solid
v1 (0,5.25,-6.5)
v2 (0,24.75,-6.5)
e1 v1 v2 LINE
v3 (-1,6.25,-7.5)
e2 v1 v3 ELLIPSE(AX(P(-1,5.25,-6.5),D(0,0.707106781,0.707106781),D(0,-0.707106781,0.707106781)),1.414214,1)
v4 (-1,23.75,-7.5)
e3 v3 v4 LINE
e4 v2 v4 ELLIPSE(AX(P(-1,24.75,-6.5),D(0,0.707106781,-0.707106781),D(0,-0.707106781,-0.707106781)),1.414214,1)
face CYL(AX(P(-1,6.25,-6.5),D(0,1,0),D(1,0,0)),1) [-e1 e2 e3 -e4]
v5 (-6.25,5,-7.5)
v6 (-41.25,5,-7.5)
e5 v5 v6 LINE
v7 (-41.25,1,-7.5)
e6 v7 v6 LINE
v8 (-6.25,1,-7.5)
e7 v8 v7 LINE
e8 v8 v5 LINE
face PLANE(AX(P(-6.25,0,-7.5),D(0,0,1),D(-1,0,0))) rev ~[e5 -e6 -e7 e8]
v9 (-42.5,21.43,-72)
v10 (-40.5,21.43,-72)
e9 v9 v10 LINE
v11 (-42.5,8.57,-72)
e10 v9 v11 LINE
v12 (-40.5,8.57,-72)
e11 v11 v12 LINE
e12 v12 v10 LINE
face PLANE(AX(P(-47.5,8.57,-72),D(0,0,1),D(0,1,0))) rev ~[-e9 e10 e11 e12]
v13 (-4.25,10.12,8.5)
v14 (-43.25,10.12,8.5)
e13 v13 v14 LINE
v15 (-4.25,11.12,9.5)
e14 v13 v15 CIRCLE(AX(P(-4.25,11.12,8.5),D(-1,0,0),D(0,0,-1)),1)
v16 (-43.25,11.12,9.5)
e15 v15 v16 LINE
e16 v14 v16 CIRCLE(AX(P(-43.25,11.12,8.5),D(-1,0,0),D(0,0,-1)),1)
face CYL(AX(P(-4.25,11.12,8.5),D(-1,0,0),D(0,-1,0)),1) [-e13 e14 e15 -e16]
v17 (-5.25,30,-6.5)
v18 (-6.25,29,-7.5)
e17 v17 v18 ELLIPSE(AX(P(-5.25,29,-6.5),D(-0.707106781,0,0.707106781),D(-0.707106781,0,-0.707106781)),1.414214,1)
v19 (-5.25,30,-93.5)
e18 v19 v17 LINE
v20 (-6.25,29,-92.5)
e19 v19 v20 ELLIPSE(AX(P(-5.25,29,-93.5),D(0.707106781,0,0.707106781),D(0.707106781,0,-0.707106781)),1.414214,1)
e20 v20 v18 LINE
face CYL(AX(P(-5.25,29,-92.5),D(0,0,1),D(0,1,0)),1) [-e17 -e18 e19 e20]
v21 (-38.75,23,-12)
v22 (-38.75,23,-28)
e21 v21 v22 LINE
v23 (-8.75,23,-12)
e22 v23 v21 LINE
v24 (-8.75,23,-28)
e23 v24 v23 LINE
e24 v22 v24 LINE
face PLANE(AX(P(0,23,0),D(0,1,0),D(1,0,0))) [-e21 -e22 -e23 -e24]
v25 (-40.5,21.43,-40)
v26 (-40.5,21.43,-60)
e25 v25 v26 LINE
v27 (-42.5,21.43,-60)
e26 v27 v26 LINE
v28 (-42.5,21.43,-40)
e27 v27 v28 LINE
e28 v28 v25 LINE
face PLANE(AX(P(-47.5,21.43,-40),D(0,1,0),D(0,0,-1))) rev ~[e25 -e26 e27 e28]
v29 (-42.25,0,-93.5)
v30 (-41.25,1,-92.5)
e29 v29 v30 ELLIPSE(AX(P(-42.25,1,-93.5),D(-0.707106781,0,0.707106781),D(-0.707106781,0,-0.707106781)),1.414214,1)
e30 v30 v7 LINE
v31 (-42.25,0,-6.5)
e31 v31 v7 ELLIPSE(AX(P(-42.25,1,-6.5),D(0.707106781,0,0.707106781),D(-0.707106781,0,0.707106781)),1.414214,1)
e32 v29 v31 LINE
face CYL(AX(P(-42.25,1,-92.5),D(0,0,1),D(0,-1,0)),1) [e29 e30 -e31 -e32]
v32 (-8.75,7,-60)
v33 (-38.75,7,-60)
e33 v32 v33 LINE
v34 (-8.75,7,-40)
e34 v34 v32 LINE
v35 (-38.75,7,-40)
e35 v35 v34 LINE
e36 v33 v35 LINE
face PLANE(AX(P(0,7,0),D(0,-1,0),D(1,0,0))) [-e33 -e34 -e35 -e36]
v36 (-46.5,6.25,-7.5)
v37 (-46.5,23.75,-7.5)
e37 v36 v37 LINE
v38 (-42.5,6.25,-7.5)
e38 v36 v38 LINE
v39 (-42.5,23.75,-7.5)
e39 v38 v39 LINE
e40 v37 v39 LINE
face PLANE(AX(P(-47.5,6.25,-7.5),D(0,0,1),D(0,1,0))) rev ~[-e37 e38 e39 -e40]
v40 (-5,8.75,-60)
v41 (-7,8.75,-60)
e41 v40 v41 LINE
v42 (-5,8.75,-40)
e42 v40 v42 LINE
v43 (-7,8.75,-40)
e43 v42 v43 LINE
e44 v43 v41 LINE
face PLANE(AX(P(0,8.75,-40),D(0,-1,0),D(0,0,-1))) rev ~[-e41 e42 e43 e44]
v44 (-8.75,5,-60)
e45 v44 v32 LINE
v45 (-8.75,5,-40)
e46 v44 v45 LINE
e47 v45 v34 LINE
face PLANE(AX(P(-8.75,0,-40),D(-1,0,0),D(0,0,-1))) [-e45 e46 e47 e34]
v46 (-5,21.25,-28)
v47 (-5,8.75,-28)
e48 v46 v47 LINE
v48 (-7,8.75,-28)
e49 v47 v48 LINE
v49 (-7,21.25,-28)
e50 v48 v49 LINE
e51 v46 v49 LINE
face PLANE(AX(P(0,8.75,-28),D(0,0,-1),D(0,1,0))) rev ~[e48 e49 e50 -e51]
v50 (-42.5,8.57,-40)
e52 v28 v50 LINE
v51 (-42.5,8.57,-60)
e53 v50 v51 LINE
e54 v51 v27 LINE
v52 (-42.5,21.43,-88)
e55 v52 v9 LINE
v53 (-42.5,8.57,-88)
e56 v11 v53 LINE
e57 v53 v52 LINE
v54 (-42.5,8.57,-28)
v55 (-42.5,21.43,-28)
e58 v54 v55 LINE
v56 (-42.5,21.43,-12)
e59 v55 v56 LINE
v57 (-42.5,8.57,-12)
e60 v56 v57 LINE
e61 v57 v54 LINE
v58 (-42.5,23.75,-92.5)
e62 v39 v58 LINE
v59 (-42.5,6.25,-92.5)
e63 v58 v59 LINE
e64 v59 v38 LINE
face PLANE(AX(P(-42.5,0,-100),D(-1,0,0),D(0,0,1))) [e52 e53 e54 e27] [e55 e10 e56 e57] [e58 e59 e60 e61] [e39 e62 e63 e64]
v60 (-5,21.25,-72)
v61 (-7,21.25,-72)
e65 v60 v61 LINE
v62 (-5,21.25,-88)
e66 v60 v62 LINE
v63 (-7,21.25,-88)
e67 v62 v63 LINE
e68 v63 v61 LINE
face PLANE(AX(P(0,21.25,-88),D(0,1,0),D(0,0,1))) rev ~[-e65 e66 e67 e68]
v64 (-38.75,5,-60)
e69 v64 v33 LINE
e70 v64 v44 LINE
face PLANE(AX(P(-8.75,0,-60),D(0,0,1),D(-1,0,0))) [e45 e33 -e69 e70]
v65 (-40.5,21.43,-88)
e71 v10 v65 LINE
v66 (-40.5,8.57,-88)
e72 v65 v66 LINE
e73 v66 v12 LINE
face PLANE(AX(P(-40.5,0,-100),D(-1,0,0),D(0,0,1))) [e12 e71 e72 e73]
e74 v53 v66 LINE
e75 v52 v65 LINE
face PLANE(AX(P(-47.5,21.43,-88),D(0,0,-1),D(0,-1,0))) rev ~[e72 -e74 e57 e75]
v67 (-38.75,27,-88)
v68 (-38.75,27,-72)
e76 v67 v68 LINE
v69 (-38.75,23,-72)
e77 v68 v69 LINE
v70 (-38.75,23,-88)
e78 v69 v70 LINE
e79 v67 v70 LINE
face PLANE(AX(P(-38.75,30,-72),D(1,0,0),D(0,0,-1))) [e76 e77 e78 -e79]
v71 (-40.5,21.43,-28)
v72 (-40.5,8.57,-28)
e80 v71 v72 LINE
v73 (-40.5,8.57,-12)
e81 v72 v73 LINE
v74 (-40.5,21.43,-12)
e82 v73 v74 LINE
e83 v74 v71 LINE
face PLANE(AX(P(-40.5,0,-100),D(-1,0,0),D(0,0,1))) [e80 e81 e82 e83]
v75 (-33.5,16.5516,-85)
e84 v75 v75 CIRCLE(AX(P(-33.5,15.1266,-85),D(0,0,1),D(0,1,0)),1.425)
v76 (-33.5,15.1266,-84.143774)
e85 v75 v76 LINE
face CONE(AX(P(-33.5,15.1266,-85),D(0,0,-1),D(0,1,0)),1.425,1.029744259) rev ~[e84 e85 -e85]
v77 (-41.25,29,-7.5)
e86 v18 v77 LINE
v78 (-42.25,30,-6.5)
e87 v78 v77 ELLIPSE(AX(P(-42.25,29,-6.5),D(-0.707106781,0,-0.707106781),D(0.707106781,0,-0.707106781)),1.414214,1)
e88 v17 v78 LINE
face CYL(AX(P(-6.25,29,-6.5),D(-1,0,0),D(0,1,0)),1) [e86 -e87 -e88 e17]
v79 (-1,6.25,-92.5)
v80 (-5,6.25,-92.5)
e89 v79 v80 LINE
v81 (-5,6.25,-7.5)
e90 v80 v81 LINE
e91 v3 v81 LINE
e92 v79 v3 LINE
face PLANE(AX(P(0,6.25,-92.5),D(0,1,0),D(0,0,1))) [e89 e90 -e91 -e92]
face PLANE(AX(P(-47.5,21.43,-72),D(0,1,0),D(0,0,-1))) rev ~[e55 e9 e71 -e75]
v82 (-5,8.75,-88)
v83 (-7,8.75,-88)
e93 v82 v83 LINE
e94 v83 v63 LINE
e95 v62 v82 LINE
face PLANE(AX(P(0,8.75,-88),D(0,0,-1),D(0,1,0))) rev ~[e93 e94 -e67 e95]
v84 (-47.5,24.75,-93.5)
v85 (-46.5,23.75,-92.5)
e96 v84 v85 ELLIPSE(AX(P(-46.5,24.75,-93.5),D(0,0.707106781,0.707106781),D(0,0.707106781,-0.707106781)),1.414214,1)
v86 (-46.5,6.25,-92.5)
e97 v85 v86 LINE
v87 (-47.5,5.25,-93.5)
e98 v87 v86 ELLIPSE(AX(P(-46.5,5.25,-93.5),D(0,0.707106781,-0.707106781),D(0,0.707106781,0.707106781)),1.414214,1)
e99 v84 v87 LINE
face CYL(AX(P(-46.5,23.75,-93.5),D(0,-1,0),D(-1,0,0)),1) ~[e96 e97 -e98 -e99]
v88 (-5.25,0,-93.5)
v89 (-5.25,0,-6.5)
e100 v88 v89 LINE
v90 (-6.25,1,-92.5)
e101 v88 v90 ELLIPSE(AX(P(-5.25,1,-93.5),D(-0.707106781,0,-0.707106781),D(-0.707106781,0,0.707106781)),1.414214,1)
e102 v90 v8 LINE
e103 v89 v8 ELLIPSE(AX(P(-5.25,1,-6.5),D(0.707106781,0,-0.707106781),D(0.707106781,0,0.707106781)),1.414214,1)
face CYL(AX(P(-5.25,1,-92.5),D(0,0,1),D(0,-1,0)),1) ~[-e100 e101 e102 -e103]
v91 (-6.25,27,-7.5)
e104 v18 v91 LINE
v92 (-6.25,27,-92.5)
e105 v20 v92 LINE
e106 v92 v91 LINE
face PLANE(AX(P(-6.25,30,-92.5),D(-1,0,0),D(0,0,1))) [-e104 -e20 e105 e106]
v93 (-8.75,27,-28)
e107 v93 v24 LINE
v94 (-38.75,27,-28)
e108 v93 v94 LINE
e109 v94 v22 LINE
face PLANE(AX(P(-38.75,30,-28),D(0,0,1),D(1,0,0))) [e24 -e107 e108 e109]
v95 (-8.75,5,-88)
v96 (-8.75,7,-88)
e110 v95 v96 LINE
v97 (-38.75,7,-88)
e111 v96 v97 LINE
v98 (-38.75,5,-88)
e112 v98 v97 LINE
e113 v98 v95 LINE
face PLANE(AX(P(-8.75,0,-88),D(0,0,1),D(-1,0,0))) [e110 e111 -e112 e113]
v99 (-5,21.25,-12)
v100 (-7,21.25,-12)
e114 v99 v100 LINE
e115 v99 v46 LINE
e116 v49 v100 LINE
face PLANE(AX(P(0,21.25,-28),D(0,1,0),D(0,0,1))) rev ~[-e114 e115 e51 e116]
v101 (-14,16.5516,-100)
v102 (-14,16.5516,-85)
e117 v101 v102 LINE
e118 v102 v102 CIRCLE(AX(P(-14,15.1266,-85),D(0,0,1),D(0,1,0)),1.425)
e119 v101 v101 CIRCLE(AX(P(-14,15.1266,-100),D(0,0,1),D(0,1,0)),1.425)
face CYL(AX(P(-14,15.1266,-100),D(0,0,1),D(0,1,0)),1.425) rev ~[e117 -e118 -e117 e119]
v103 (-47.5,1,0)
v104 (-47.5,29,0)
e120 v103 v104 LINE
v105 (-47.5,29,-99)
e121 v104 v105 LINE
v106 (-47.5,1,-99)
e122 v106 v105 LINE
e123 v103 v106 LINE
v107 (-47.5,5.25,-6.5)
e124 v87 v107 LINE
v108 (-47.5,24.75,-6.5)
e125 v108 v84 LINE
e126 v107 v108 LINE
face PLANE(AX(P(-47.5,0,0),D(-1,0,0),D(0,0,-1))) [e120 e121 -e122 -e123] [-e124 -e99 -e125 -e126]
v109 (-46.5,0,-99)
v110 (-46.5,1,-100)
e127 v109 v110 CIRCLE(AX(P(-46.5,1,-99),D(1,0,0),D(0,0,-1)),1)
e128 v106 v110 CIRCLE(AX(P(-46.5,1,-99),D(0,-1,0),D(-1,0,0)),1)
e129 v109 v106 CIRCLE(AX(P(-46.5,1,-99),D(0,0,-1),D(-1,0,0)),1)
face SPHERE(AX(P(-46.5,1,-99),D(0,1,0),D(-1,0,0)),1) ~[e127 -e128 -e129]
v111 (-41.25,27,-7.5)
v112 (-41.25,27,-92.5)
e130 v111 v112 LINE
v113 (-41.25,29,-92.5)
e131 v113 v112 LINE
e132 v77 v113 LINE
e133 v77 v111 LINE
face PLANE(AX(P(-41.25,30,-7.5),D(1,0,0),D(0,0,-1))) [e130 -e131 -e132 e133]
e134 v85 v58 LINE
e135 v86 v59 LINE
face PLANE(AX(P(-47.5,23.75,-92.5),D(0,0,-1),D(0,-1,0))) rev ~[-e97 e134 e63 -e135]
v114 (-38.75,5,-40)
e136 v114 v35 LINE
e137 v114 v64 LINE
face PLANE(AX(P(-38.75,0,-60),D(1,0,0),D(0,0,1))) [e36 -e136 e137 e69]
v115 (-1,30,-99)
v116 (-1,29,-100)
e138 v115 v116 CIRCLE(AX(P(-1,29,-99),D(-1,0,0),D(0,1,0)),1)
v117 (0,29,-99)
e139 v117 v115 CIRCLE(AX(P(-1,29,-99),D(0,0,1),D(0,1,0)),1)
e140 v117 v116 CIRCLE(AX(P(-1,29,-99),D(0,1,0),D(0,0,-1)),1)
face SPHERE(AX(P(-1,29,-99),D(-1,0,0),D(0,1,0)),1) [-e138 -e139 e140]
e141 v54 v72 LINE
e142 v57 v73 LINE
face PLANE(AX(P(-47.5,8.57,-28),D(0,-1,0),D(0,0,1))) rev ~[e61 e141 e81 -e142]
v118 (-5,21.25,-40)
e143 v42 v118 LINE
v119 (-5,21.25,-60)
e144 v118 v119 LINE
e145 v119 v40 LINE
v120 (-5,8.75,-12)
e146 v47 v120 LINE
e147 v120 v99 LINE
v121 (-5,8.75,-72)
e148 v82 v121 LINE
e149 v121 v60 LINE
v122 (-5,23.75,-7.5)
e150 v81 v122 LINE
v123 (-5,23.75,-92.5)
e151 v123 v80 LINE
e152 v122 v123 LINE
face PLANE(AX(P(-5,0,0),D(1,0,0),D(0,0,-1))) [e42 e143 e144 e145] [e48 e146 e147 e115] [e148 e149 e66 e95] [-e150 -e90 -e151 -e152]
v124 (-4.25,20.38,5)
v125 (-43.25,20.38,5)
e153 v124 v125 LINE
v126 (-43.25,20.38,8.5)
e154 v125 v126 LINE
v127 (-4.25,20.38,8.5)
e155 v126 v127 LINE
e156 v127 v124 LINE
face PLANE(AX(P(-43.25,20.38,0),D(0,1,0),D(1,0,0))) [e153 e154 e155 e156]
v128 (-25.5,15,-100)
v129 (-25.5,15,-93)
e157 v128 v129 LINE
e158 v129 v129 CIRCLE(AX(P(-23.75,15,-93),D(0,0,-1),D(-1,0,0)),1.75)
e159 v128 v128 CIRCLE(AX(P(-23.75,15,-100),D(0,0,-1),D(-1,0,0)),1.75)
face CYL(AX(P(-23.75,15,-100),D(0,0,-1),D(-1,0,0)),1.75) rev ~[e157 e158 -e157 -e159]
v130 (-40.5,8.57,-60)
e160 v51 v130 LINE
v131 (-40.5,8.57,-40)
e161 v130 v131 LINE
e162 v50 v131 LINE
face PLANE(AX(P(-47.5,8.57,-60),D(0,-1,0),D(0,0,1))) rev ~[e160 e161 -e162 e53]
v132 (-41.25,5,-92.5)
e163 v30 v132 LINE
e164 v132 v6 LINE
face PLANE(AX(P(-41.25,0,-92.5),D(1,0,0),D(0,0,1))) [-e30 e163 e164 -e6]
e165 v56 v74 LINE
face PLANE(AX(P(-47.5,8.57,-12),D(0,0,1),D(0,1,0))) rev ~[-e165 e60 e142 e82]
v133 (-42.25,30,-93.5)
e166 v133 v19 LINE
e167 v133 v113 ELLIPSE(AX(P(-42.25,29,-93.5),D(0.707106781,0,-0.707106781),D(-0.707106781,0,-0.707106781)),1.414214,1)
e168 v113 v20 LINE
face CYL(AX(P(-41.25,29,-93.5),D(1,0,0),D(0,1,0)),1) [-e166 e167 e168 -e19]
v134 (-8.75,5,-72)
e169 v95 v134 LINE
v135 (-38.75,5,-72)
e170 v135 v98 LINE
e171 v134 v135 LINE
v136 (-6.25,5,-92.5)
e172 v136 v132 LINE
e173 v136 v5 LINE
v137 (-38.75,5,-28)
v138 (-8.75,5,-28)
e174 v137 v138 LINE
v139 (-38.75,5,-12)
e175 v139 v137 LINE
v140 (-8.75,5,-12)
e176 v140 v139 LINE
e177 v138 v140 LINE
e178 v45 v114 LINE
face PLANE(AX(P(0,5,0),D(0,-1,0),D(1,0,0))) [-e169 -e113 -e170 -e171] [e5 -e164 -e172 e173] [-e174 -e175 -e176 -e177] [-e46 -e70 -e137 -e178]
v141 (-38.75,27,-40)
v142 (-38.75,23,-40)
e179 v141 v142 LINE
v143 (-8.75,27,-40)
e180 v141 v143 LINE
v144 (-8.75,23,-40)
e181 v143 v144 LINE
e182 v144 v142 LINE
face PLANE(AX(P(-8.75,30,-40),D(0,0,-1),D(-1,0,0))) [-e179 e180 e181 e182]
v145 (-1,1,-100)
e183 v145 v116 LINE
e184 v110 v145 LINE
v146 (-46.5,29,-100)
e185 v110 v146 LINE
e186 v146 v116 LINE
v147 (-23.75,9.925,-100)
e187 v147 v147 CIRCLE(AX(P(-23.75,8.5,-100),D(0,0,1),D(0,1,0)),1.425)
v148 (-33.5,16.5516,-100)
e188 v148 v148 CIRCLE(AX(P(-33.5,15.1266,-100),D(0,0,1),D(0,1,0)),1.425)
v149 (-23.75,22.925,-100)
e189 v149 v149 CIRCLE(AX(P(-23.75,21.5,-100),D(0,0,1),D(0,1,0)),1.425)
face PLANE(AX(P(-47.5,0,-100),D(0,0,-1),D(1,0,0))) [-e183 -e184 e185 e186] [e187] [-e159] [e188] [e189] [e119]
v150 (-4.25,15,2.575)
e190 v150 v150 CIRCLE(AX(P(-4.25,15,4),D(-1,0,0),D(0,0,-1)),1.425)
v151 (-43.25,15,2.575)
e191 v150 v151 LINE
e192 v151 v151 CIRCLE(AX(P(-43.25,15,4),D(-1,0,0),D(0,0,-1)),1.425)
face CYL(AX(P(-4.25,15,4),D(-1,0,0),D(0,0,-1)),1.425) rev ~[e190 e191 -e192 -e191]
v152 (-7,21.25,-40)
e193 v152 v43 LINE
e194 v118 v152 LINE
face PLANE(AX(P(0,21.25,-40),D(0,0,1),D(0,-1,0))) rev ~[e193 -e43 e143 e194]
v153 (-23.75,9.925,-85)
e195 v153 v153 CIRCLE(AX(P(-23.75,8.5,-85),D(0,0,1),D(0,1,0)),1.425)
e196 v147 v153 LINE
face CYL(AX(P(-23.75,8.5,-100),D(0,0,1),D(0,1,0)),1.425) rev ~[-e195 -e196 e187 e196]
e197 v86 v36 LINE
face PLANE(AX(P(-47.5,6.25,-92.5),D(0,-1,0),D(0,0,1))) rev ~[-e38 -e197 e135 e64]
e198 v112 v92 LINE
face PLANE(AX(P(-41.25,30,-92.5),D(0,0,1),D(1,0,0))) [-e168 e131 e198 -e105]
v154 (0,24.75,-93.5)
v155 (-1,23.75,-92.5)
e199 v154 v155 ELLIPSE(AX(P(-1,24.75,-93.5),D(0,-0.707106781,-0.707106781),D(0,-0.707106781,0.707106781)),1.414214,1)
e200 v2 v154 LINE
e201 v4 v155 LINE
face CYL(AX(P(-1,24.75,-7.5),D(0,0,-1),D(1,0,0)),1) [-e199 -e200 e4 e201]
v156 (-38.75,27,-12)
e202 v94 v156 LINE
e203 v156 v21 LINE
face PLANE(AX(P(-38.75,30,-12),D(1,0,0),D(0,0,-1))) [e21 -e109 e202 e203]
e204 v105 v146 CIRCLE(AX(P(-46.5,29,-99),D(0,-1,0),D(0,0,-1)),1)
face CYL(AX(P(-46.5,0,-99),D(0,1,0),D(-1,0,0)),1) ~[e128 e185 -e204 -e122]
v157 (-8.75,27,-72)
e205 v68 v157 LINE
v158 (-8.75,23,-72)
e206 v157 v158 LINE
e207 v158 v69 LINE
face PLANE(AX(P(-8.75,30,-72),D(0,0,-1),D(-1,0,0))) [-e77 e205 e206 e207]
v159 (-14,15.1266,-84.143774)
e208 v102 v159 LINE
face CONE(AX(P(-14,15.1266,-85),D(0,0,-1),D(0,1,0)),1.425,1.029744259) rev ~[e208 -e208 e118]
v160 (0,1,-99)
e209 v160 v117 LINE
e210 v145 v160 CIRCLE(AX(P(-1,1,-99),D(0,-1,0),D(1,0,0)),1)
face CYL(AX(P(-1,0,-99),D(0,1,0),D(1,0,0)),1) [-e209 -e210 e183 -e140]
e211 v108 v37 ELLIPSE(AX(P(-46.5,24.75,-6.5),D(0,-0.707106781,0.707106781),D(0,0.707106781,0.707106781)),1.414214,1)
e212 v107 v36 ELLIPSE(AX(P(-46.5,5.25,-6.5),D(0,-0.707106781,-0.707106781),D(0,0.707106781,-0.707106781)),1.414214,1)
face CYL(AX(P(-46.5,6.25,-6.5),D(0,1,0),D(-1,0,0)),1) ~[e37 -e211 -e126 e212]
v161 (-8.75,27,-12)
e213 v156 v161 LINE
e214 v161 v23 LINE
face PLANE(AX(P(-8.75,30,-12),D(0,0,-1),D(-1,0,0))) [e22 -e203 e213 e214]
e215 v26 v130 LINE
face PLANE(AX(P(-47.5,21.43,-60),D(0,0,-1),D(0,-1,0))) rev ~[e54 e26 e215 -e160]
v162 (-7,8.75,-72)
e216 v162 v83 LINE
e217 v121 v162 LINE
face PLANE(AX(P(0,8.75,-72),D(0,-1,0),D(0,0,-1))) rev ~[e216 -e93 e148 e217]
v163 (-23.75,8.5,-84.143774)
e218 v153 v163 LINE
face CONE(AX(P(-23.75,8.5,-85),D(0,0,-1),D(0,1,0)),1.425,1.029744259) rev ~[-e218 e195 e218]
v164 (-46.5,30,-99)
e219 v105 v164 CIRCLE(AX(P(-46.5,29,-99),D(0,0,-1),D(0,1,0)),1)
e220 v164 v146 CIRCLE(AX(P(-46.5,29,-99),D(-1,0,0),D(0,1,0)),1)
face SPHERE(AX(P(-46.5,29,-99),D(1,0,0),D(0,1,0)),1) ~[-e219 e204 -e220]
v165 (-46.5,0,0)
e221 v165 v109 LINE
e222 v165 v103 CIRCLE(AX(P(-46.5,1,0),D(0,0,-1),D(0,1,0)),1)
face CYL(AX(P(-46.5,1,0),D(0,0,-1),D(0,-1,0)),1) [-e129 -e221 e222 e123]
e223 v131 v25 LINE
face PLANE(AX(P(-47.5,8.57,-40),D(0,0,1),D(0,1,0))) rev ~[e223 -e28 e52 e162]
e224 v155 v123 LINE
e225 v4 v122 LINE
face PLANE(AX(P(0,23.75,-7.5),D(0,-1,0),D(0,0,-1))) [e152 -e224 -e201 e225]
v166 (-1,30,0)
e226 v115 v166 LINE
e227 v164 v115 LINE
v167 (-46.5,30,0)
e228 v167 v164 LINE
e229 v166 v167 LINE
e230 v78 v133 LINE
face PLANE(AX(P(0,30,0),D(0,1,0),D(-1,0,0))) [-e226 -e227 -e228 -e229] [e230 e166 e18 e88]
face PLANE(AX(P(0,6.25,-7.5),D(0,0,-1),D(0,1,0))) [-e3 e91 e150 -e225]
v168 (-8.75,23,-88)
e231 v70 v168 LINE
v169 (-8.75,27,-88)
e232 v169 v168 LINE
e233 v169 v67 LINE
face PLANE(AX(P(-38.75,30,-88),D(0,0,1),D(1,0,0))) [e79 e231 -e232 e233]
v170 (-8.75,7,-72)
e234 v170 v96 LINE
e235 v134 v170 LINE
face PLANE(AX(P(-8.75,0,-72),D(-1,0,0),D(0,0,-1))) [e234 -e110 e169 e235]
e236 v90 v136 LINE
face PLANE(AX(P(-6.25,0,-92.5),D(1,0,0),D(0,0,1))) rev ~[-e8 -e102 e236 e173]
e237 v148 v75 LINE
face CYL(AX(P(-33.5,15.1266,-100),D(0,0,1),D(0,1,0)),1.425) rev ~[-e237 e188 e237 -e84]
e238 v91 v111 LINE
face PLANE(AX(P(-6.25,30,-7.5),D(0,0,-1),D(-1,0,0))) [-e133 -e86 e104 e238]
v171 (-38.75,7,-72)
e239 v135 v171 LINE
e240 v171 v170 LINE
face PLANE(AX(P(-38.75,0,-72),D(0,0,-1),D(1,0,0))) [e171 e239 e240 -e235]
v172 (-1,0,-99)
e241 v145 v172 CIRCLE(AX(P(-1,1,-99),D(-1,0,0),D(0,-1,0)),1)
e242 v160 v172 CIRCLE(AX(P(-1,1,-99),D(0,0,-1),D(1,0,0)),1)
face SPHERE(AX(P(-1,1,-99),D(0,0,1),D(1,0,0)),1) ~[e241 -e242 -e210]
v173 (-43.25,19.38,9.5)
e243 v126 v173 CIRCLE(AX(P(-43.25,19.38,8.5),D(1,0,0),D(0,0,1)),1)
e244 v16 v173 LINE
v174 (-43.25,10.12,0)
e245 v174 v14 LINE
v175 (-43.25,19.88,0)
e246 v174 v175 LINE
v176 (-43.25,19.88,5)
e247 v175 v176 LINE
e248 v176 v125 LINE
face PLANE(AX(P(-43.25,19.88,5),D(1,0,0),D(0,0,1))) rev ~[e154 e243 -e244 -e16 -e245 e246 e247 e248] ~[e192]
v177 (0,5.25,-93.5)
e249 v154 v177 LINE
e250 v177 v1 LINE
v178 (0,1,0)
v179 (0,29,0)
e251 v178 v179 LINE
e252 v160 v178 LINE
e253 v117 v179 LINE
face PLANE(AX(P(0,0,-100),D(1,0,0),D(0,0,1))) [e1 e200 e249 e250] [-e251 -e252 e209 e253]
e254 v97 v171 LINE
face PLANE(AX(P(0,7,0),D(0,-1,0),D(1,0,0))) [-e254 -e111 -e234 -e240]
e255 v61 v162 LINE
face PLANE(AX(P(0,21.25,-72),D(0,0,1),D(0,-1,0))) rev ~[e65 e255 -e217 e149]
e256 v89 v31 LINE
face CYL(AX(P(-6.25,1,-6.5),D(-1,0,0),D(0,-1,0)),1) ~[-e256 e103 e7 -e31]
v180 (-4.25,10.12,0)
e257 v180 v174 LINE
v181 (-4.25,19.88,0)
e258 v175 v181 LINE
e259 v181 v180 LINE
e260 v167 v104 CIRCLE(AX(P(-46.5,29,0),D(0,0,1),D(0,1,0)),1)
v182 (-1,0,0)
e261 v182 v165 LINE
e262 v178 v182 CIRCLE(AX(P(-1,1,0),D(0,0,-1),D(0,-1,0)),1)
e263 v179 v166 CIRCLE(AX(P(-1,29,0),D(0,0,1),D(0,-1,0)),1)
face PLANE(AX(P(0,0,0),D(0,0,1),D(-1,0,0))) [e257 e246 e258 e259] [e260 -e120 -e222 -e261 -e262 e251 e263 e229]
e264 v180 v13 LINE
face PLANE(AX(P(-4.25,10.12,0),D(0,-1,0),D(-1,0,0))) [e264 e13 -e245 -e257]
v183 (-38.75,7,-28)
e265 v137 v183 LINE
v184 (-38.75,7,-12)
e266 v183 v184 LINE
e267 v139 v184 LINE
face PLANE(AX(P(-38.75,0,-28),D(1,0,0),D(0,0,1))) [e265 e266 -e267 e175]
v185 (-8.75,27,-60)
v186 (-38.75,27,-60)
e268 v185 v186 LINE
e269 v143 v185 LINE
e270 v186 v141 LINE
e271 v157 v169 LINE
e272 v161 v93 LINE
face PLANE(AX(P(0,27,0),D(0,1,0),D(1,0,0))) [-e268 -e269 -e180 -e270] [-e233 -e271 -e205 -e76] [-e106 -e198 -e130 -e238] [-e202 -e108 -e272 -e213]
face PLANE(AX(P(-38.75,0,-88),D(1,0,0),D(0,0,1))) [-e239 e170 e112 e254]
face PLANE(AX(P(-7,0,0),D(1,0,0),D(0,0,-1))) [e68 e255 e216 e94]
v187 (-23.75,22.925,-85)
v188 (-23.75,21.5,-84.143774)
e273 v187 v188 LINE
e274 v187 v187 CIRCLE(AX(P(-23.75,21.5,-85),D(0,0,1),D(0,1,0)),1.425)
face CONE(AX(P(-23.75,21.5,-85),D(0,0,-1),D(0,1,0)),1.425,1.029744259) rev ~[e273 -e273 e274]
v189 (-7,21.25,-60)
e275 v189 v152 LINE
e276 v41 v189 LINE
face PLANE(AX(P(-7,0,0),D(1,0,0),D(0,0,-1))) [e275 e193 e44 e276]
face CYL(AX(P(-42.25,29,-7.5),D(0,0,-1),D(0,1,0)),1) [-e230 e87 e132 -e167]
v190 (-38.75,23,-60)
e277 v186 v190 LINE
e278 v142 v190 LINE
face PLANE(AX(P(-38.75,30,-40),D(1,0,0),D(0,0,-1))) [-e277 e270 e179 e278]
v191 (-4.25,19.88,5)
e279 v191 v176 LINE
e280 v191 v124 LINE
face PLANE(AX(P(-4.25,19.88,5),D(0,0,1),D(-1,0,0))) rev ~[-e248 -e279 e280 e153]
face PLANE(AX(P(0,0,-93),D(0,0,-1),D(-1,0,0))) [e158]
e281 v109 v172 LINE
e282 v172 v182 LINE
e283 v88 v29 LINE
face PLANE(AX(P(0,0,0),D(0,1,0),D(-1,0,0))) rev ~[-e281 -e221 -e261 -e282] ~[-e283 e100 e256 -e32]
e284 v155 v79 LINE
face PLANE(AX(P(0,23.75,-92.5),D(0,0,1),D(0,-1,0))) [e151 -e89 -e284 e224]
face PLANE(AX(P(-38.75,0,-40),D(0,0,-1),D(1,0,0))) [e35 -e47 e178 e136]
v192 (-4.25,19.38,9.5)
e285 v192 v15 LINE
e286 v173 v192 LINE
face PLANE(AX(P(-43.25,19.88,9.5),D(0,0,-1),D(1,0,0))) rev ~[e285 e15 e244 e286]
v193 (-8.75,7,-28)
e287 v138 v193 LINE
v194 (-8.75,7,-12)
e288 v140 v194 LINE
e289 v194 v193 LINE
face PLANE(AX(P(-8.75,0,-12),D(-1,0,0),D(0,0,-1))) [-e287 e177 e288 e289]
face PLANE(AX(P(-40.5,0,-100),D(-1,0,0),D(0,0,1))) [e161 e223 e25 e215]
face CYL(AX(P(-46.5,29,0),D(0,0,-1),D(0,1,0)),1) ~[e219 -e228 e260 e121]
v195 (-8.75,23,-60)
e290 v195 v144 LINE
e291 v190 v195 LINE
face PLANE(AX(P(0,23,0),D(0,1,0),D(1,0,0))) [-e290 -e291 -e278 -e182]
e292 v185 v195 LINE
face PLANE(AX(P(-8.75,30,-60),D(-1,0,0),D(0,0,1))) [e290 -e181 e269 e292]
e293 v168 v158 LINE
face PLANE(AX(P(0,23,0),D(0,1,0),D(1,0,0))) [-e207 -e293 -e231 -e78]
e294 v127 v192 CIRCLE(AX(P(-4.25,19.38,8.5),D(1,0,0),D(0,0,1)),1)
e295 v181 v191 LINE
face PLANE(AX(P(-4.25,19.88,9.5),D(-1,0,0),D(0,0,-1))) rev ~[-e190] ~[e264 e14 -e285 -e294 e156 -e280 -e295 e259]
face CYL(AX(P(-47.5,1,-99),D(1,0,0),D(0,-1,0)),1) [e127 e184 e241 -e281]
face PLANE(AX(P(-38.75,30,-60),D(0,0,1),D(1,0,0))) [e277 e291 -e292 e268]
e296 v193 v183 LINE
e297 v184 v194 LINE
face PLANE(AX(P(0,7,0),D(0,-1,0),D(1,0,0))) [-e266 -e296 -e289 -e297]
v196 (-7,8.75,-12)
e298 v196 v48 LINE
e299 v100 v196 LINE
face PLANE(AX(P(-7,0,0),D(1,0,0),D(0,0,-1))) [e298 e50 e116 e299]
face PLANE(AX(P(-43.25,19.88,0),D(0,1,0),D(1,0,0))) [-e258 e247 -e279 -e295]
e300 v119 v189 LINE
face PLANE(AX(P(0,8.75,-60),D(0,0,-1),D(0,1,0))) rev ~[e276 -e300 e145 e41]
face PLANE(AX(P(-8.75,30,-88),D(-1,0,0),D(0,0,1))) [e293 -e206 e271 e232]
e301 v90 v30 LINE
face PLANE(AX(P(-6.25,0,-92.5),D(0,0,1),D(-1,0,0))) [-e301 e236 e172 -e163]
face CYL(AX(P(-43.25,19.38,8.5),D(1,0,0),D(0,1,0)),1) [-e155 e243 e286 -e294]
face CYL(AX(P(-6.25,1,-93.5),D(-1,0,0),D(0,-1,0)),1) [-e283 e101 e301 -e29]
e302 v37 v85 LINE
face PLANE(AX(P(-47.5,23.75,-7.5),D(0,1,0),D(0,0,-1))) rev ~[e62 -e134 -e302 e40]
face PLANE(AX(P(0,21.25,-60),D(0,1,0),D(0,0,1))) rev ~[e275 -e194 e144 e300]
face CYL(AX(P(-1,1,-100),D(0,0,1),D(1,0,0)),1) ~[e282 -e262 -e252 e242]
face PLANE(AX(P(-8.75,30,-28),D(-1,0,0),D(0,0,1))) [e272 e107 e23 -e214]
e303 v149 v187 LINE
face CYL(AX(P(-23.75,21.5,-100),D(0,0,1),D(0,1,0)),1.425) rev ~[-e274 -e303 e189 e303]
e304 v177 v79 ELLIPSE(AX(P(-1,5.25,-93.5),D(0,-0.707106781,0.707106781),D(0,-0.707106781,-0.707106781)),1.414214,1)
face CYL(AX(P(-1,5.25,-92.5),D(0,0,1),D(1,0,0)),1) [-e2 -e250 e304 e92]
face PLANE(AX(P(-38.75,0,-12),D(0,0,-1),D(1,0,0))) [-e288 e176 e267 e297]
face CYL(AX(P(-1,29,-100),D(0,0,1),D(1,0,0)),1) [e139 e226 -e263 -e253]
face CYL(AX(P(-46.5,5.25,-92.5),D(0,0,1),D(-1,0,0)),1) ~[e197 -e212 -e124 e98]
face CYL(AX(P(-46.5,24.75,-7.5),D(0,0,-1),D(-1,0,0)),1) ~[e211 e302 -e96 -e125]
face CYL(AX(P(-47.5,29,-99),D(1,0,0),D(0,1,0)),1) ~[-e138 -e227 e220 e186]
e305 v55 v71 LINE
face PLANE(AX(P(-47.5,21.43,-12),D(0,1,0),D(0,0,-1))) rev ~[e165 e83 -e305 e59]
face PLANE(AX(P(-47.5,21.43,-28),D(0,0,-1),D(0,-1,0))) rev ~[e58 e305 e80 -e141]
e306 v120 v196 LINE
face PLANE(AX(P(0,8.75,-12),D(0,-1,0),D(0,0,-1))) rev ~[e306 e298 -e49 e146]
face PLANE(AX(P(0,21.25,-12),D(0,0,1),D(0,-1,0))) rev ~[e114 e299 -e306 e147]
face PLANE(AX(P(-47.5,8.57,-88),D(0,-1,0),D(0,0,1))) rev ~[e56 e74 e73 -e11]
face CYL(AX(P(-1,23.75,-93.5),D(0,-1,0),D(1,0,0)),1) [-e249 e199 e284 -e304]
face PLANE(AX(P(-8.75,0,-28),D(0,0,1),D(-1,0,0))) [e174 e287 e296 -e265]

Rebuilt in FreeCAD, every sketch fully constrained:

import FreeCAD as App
import Part
import Sketcher
Q = App.Units.Quantity


def edges_at(feature, points):
    """Names of the edges that pass closest to the given points."""
    edges = feature.Shape.Edges
    near = lambda p: min(range(len(edges)), key=lambda i: edges[i].distToShape(Part.Vertex(*p))[0])
    return sorted({f"Edge{near(p) + 1}" for p in points})


def add_polygon(sketch, points):
    """Adds a closed chain of lines whose ends are joined by coincident constraints."""
    first, n = sketch.GeometryCount, len(points)
    for a, b in zip(points, points[1:] + points[:1]):
        sketch.addGeometry(Part.LineSegment(App.Vector(*a, 0), App.Vector(*b, 0)), False)
    for i in range(n):
        sketch.addConstraint(Sketcher.Constraint("Coincident", first + i, 2, first + (i + 1) % n, 1))

doc = App.newDocument("Part")
body = doc.addObject("PartDesign::Body", "Body")

sketch1 = body.newObject("Sketcher::SketchObject", "Sketch")
sketch1.AttachmentSupport = (doc.getObject("XZ_Plane"), [""])
sketch1.MapMode = "FlatFace"
add_polygon(sketch1, [(-48, 0), (0, 0), (0, -100), (-48, -100)])
sketch1.addConstraint([
    Sketcher.Constraint("Horizontal", 0),
    Sketcher.Constraint("Vertical", 1),
    Sketcher.Constraint("Horizontal", 2),
    Sketcher.Constraint("Vertical", 3),
    Sketcher.Constraint("Coincident", 0, 2, -1, 1),
    Sketcher.Constraint("DistanceY", 1, 2, 1, 1, Q("100 mm")),
    Sketcher.Constraint("DistanceX", 0, 1, 0, 2, Q("47.5 mm")),
])
pad1 = body.newObject("PartDesign::Pad", "Pad")
pad1.Profile = sketch1
pad1.Length = 30
pad1.Reversed = True

sketch2 = body.newObject("Sketcher::SketchObject", "Sketch001")
sketch2.AttachmentSupport = (doc.getObject("XY_Plane"), [""])
sketch2.MapMode = "FlatFace"
add_polygon(sketch2, [(-4, 20), (-43, 20), (-43, 10), (-4, 10)])
sketch2.addConstraint([
    Sketcher.Constraint("Horizontal", 0),
    Sketcher.Constraint("Vertical", 1),
    Sketcher.Constraint("Horizontal", 2),
    Sketcher.Constraint("Vertical", 3),
    Sketcher.Constraint("DistanceX", 0, 2, 0, 1, Q("39 mm")),
    Sketcher.Constraint("DistanceY", 1, 2, 1, 1, Q("9.76 mm")),
    Sketcher.Constraint("DistanceX", 0, 2, -1, 1, Q("43.25 mm")),
    Sketcher.Constraint("DistanceY", -1, 1, 0, 2, Q("19.88 mm")),
])
pad2 = body.newObject("PartDesign::Pad", "Pad001")
pad2.Profile = sketch2
pad2.Length = 9.5

sketch3 = body.newObject("Sketcher::SketchObject", "Sketch002")
sketch3.AttachmentSupport = (doc.getObject("YZ_Plane"), [""])
sketch3.MapMode = "FlatFace"
sketch3.AttachmentOffset = App.Placement(App.Vector(0, 0, -4.25), App.Rotation())
sketch3.addGeometry(Part.Circle(App.Vector(15, 4, 0), App.Vector(0, 0, 1), 1.4), False)
sketch3.addConstraint([
    Sketcher.Constraint("Diameter", 0, Q("2.85 mm")),
    Sketcher.Constraint("DistanceX", -1, 1, 0, 3, Q("15 mm")),
    Sketcher.Constraint("DistanceY", -1, 1, 0, 3, Q("4 mm")),
])
doc.recompute()
hole = body.newObject("PartDesign::Hole", "Hole")
hole.Profile = sketch3
hole.ThreadType = "None"
hole.Diameter = 2.85
hole.DepthType = "ThroughAll"

sketch4 = body.newObject("Sketcher::SketchObject", "Sketch003")
sketch4.AttachmentSupport = (doc.getObject("XZ_Plane"), [""])
sketch4.MapMode = "FlatFace"
sketch4.AttachmentOffset = App.Placement(App.Vector(0, 0, -19.88), App.Rotation())
add_polygon(sketch4, [(-4.2, 5), (-43.2, 5), (-43.2, 9.5), (-4.2, 9.5)])
sketch4.addConstraint([
    Sketcher.Constraint("Horizontal", 0),
    Sketcher.Constraint("Vertical", 1),
    Sketcher.Constraint("Horizontal", 2),
    Sketcher.Constraint("Vertical", 3),
    Sketcher.Constraint("DistanceY", 1, 1, 1, 2, Q("4.5 mm")),
    Sketcher.Constraint("DistanceX", 0, 2, 0, 1, Q("39 mm")),
    Sketcher.Constraint("DistanceY", -1, 1, 0, 2, Q("5 mm")),
    Sketcher.Constraint("DistanceX", 0, 2, -1, 1, Q("43.25 mm")),
])
pad3 = body.newObject("PartDesign::Pad", "Pad002")
pad3.Profile = sketch4
pad3.Length = 0.5
pad3.Reversed = True

sketch5 = body.newObject("Sketcher::SketchObject", "Sketch004")
sketch5.AttachmentSupport = (doc.getObject("XZ_Plane"), [""])
sketch5.MapMode = "FlatFace"
sketch5.AttachmentOffset = App.Placement(App.Vector(0, 0, -30), App.Rotation())
add_polygon(sketch5, [(-9, -28), (-39, -28), (-39, -12), (-9, -12)])
add_polygon(sketch5, [(-9, -60), (-39, -60), (-39, -40), (-9, -40)])
add_polygon(sketch5, [(-9, -88), (-39, -88), (-39, -72), (-9, -72)])
sketch5.addConstraint([
    Sketcher.Constraint("Horizontal", 0),
    Sketcher.Constraint("Vertical", 1),
    Sketcher.Constraint("Horizontal", 2),
    Sketcher.Constraint("Vertical", 3),
    Sketcher.Constraint("Horizontal", 4),
    Sketcher.Constraint("Vertical", 5),
    Sketcher.Constraint("Horizontal", 6),
    Sketcher.Constraint("Vertical", 7),
    Sketcher.Constraint("Horizontal", 8),
    Sketcher.Constraint("Vertical", 9),
    Sketcher.Constraint("Horizontal", 10),
    Sketcher.Constraint("Vertical", 11),
    Sketcher.Constraint("Vertical", 1, 2, 4, 2),
    Sketcher.Constraint("Vertical", 3, 2, 6, 2),
    Sketcher.Constraint("Vertical", 5, 2, 8, 2),
    Sketcher.Constraint("Vertical", 7, 2, 10, 2),
    Sketcher.Constraint("Equal", 3, 9),
    Sketcher.Constraint("DistanceX", 0, 2, 0, 1, Q("30 mm")),
    Sketcher.Constraint("DistanceY", 1, 1, 1, 2, Q("16 mm")),
    Sketcher.Constraint("DistanceY", 5, 1, 5, 2, Q("20 mm")),
    Sketcher.Constraint("DistanceY", 1, 2, -1, 1, Q("12 mm")),
    Sketcher.Constraint("DistanceY", 5, 2, 0, 2, Q("12 mm")),
    Sketcher.Constraint("DistanceY", 9, 2, 4, 2, Q("12 mm")),
    Sketcher.Constraint("DistanceX", 0, 2, -1, 1, Q("38.75 mm")),
])
pocket1 = body.newObject("PartDesign::Pocket", "Pocket")
pocket1.Profile = sketch5
pocket1.Length = 7
pocket1.Reversed = True

sketch6 = body.newObject("Sketcher::SketchObject", "Sketch005")
sketch6.AttachmentSupport = (doc.getObject("XZ_Plane"), [""])
sketch6.MapMode = "FlatFace"
add_polygon(sketch6, [(-9, -72), (-39, -72), (-39, -88), (-9, -88)])
add_polygon(sketch6, [(-9, -40), (-39, -40), (-39, -60), (-9, -60)])
add_polygon(sketch6, [(-9, -12), (-39, -12), (-39, -28), (-9, -28)])
sketch6.addConstraint([
    Sketcher.Constraint("Horizontal", 0),
    Sketcher.Constraint("Vertical", 1),
    Sketcher.Constraint("Horizontal", 2),
    Sketcher.Constraint("Vertical", 3),
    Sketcher.Constraint("Horizontal", 4),
    Sketcher.Constraint("Vertical", 5),
    Sketcher.Constraint("Horizontal", 6),
    Sketcher.Constraint("Vertical", 7),
    Sketcher.Constraint("Horizontal", 8),
    Sketcher.Constraint("Vertical", 9),
    Sketcher.Constraint("Horizontal", 10),
    Sketcher.Constraint("Vertical", 11),
    Sketcher.Constraint("Vertical", 1, 2, 4, 2),
    Sketcher.Constraint("Vertical", 3, 2, 6, 2),
    Sketcher.Constraint("Vertical", 5, 2, 8, 2),
    Sketcher.Constraint("Vertical", 7, 2, 10, 2),
    Sketcher.Constraint("Equal", 3, 9),
    Sketcher.Constraint("DistanceX", 0, 2, 0, 1, Q("30 mm")),
    Sketcher.Constraint("DistanceY", 1, 2, 1, 1, Q("16 mm")),
    Sketcher.Constraint("DistanceY", 5, 2, 5, 1, Q("20 mm")),
    Sketcher.Constraint("DistanceY", 8, 2, -1, 1, Q("12 mm")),
    Sketcher.Constraint("DistanceY", 0, 2, 5, 2, Q("12 mm")),
    Sketcher.Constraint("DistanceY", 4, 2, 9, 2, Q("12 mm")),
    Sketcher.Constraint("DistanceX", 0, 2, -1, 1, Q("38.75 mm")),
])
pocket2 = body.newObject("PartDesign::Pocket", "Pocket001")
pocket2.Profile = sketch6
pocket2.Length = 7

sketch7 = body.newObject("Sketcher::SketchObject", "Sketch006")
sketch7.AttachmentSupport = (doc.getObject("XZ_Plane"), [""])
sketch7.MapMode = "FlatFace"
sketch7.AttachmentOffset = App.Placement(App.Vector(0, 0, -30), App.Rotation())
add_polygon(sketch7, [(-6, -92), (-41, -92), (-41, -8), (-6, -8)])
sketch7.addConstraint([
    Sketcher.Constraint("Horizontal", 0),
    Sketcher.Constraint("Vertical", 1),
    Sketcher.Constraint("Horizontal", 2),
    Sketcher.Constraint("Vertical", 3),
    Sketcher.Constraint("DistanceX", 0, 2, 0, 1, Q("35 mm")),
    Sketcher.Constraint("DistanceY", 1, 1, 1, 2, Q("85 mm")),
    Sketcher.Constraint("DistanceY", 1, 2, -1, 1, Q("7.5 mm")),
    Sketcher.Constraint("DistanceX", 2, 2, -1, 1, Q("6.25 mm")),
])
pocket3 = body.newObject("PartDesign::Pocket", "Pocket002")
pocket3.Profile = sketch7
pocket3.Length = 3
pocket3.Reversed = True

sketch8 = body.newObject("Sketcher::SketchObject", "Sketch007")
sketch8.AttachmentSupport = (doc.getObject("XZ_Plane"), [""])
sketch8.MapMode = "FlatFace"
add_polygon(sketch8, [(-6, -92), (-6, -8), (-41, -8), (-41, -92)])
sketch8.addConstraint([
    Sketcher.Constraint("Vertical", 0),
    Sketcher.Constraint("Horizontal", 1),
    Sketcher.Constraint("Vertical", 2),
    Sketcher.Constraint("Horizontal", 3),
    Sketcher.Constraint("DistanceX", 1, 2, 1, 1, Q("35 mm")),
    Sketcher.Constraint("DistanceY", 0, 1, 0, 2, Q("85 mm")),
    Sketcher.Constraint("DistanceY", 0, 2, -1, 1, Q("7.5 mm")),
    Sketcher.Constraint("DistanceX", 0, 2, -1, 1, Q("6.25 mm")),
])
pocket4 = body.newObject("PartDesign::Pocket", "Pocket003")
pocket4.Profile = sketch8
pocket4.Length = 5

sketch9 = body.newObject("Sketcher::SketchObject", "Sketch008")
sketch9.AttachmentSupport = (doc.getObject("YZ_Plane"), [""])
sketch9.MapMode = "FlatFace"
add_polygon(sketch9, [(9, -88), (21, -88), (21, -72), (9, -72)])
add_polygon(sketch9, [(9, -60), (21, -60), (21, -40), (9, -40)])
add_polygon(sketch9, [(9, -28), (21, -28), (21, -12), (9, -12)])
sketch9.addConstraint([
    Sketcher.Constraint("Horizontal", 0),
    Sketcher.Constraint("Vertical", 1),
    Sketcher.Constraint("Horizontal", 2),
    Sketcher.Constraint("Vertical", 3),
    Sketcher.Constraint("Horizontal", 4),
    Sketcher.Constraint("Vertical", 5),
    Sketcher.Constraint("Horizontal", 6),
    Sketcher.Constraint("Vertical", 7),
    Sketcher.Constraint("Horizontal", 8),
    Sketcher.Constraint("Vertical", 9),
    Sketcher.Constraint("Horizontal", 10),
    Sketcher.Constraint("Vertical", 11),
    Sketcher.Constraint("Vertical", 1, 2, 4, 2),
    Sketcher.Constraint("Vertical", 3, 2, 6, 2),
    Sketcher.Constraint("Vertical", 5, 2, 8, 2),
    Sketcher.Constraint("Vertical", 7, 2, 10, 2),
    Sketcher.Constraint("Equal", 3, 9),
    Sketcher.Constraint("DistanceY", 1, 1, 1, 2, Q("16 mm")),
    Sketcher.Constraint("DistanceY", 5, 1, 5, 2, Q("20 mm")),
    Sketcher.Constraint("DistanceY", 9, 2, -1, 1, Q("12 mm")),
    Sketcher.Constraint("DistanceY", 1, 2, 4, 2, Q("12 mm")),
    Sketcher.Constraint("DistanceY", 5, 2, 8, 2, Q("12 mm")),
    Sketcher.Constraint("DistanceX", -1, 1, 2, 2, Q("8.75 mm")),
    Sketcher.Constraint("DistanceX", 0, 1, 0, 2, Q("12.5 mm")),
])
pocket5 = body.newObject("PartDesign::Pocket", "Pocket004")
pocket5.Profile = sketch9
pocket5.Length = 7

sketch10 = body.newObject("Sketcher::SketchObject", "Sketch009")
sketch10.AttachmentSupport = (doc.getObject("YZ_Plane"), [""])
sketch10.MapMode = "FlatFace"
sketch10.AttachmentOffset = App.Placement(App.Vector(0, 0, -47.5), App.Rotation())
add_polygon(sketch10, [(9, -12), (21, -12), (21, -28), (9, -28)])
add_polygon(sketch10, [(9, -40), (21, -40), (21, -60), (9, -60)])
add_polygon(sketch10, [(9, -72), (21, -72), (21, -88), (9, -88)])
sketch10.addConstraint([
    Sketcher.Constraint("Horizontal", 0),
    Sketcher.Constraint("Vertical", 1),
    Sketcher.Constraint("Horizontal", 2),
    Sketcher.Constraint("Vertical", 3),
    Sketcher.Constraint("Horizontal", 4),
    Sketcher.Constraint("Vertical", 5),
    Sketcher.Constraint("Horizontal", 6),
    Sketcher.Constraint("Vertical", 7),
    Sketcher.Constraint("Horizontal", 8),
    Sketcher.Constraint("Vertical", 9),
    Sketcher.Constraint("Horizontal", 10),
    Sketcher.Constraint("Vertical", 11),
    Sketcher.Constraint("Vertical", 1, 2, 4, 2),
    Sketcher.Constraint("Vertical", 3, 2, 6, 2),
    Sketcher.Constraint("Vertical", 5, 2, 8, 2),
    Sketcher.Constraint("Vertical", 7, 2, 10, 2),
    Sketcher.Constraint("Equal", 3, 9),
    Sketcher.Constraint("DistanceY", 1, 2, 1, 1, Q("16 mm")),
    Sketcher.Constraint("DistanceY", 5, 2, 5, 1, Q("20 mm")),
    Sketcher.Constraint("DistanceY", 0, 2, -1, 1, Q("12 mm")),
    Sketcher.Constraint("DistanceY", 4, 2, 1, 2, Q("12 mm")),
    Sketcher.Constraint("DistanceY", 8, 2, 5, 2, Q("12 mm")),
    Sketcher.Constraint("DistanceX", -1, 1, 2, 2, Q("8.57 mm")),
    Sketcher.Constraint("DistanceX", 0, 1, 0, 2, Q("12.86 mm")),
])
pocket6 = body.newObject("PartDesign::Pocket", "Pocket005")
pocket6.Profile = sketch10
pocket6.Length = 7
pocket6.Reversed = True

sketch11 = body.newObject("Sketcher::SketchObject", "Sketch010")
sketch11.AttachmentSupport = (doc.getObject("YZ_Plane"), [""])
sketch11.MapMode = "FlatFace"
sketch11.AttachmentOffset = App.Placement(App.Vector(0, 0, -47.5), App.Rotation())
add_polygon(sketch11, [(24, -92), (6, -92), (6, -8), (24, -8)])
sketch11.addConstraint([
    Sketcher.Constraint("Horizontal", 0),
    Sketcher.Constraint("Vertical", 1),
    Sketcher.Constraint("Horizontal", 2),
    Sketcher.Constraint("Vertical", 3),
    Sketcher.Constraint("DistanceY", 1, 2, -1, 1, Q("7.5 mm")),
    Sketcher.Constraint("DistanceY", 1, 1, 1, 2, Q("85 mm")),
    Sketcher.Constraint("DistanceX", -1, 1, 0, 2, Q("6.25 mm")),
    Sketcher.Constraint("DistanceX", 0, 2, 0, 1, Q("17.5 mm")),
])
pocket7 = body.newObject("PartDesign::Pocket", "Pocket006")
pocket7.Profile = sketch11
pocket7.Length = 5
pocket7.Reversed = True

sketch12 = body.newObject("Sketcher::SketchObject", "Sketch011")
sketch12.AttachmentSupport = (doc.getObject("YZ_Plane"), [""])
sketch12.MapMode = "FlatFace"
add_polygon(sketch12, [(24, -92), (24, -8), (6, -8), (6, -92)])
sketch12.addConstraint([
    Sketcher.Constraint("Vertical", 0),
    Sketcher.Constraint("Horizontal", 1),
    Sketcher.Constraint("Vertical", 2),
    Sketcher.Constraint("Horizontal", 3),
    Sketcher.Constraint("DistanceY", 0, 2, -1, 1, Q("7.5 mm")),
    Sketcher.Constraint("DistanceY", 0, 1, 0, 2, Q("85 mm")),
    Sketcher.Constraint("DistanceX", -1, 1, 1, 2, Q("6.25 mm")),
    Sketcher.Constraint("DistanceX", 1, 2, 1, 1, Q("17.5 mm")),
])
pocket8 = body.newObject("PartDesign::Pocket", "Pocket007")
pocket8.Profile = sketch12
pocket8.Length = 5

sketch13 = body.newObject("Sketcher::SketchObject", "Sketch012")
sketch13.AttachmentSupport = (doc.getObject("XY_Plane"), [""])
sketch13.MapMode = "FlatFace"
sketch13.AttachmentOffset = App.Placement(App.Vector(0, 0, -100), App.Rotation())
sketch13.addGeometry(Part.Circle(App.Vector(-23.8, 15, 0), App.Vector(0, 0, 1), 1.8), False)
sketch13.addConstraint([
    Sketcher.Constraint("Diameter", 0, Q("3.5 mm")),
    Sketcher.Constraint("DistanceY", -1, 1, 0, 3, Q("15 mm")),
    Sketcher.Constraint("DistanceX", 0, 3, -1, 1, Q("23.75 mm")),
])
pocket9 = body.newObject("PartDesign::Pocket", "Pocket008")
pocket9.Profile = sketch13
pocket9.Length = 7
pocket9.Reversed = True

sketch14 = body.newObject("Sketcher::SketchObject", "Sketch013")
sketch14.AttachmentSupport = (doc.getObject("XY_Plane"), [""])
sketch14.MapMode = "FlatFace"
sketch14.AttachmentOffset = App.Placement(App.Vector(0, 0, -100), App.Rotation())
sketch14.addGeometry([
    Part.Circle(App.Vector(-23.8, 21.5, 0), App.Vector(0, 0, 1), 1.4),
    Part.Circle(App.Vector(-23.8, 8.5, 0), App.Vector(0, 0, 1), 1.4),
    Part.Circle(App.Vector(-14, 15.1, 0), App.Vector(0, 0, 1), 1.4),
    Part.Circle(App.Vector(-33.5, 15.1, 0), App.Vector(0, 0, 1), 1.4),
], False)
sketch14.addConstraint([
    Sketcher.Constraint("Equal", 0, 1),
    Sketcher.Constraint("Equal", 1, 2),
    Sketcher.Constraint("Equal", 2, 3),
    Sketcher.Constraint("Horizontal", 2, 3, 3, 3),
    Sketcher.Constraint("Vertical", 0, 3, 1, 3),
    Sketcher.Constraint("Diameter", 0, Q("2.85 mm")),
    Sketcher.Constraint("DistanceX", 2, 3, -1, 1, Q("14 mm")),
    Sketcher.Constraint("DistanceY", 1, 3, 0, 3, Q("13 mm")),
    Sketcher.Constraint("DistanceY", -1, 1, 0, 3, Q("21.5 mm")),
    Sketcher.Constraint("DistanceX", 3, 3, -1, 1, Q("33.5 mm")),
    Sketcher.Constraint("DistanceX", 0, 3, -1, 1, Q("23.75 mm")),
    Sketcher.Constraint("DistanceY", -1, 1, 2, 3, Q("15.1266 mm")),
])
doc.recompute()
hole2 = body.newObject("PartDesign::Hole", "Hole001")
hole2.Profile = sketch14
hole2.ThreadType = "None"
hole2.Diameter = 2.85
hole2.DepthType = "Dimension"
hole2.Depth = 15
hole2.DrillPoint = "Angled"
hole2.DrillPointAngle = 118
hole2.Reversed = True
doc.recompute()

fillet = body.newObject("PartDesign::Fillet", "Fillet")
fillet.Base = (hole2, edges_at(hole2, [(-23.75, 30, -100)]))
fillet.Radius = 1
doc.recompute()

fillet2 = body.newObject("PartDesign::Fillet", "Fillet001")
fillet2.Base = (fillet, edges_at(fillet, [
    (0, 30, -50),
    (-47.5, 30, -50),
    (0, 15, -92.5),
    (0, 6.25, -50),
    (0, 23.75, -50),
    (0, 15, -7.5),
    (-41.25, 30, -50),
    (-23.75, 30, -92.5),
    (-23.75, 30, -7.5),
    (-6.25, 30, -50),
    (0, 0, -50),
    (0, 15, -100),
    (-47.5, 15, -100),
    (-47.5, 0, -50),
    (-6.25, 0, -50),
    (-23.75, 0, -92.5),
    (-41.25, 0, -50),
    (-23.75, 0, -7.5),
    (-23.75, 0, -100),
    (-47.5, 15, -7.5),
    (-47.5, 6.25, -50),
    (-47.5, 23.75, -50),
    (-47.5, 15, -92.5),
]))
fillet2.Radius = 1
doc.recompute()

fillet3 = body.newObject("PartDesign::Fillet", "Fillet002")
fillet3.Base = (fillet2, edges_at(fillet2, [(-23.75, 10.12, 9.5), (-23.75, 20.38, 9.5)]))
fillet3.Radius = 1

doc.recompute()
